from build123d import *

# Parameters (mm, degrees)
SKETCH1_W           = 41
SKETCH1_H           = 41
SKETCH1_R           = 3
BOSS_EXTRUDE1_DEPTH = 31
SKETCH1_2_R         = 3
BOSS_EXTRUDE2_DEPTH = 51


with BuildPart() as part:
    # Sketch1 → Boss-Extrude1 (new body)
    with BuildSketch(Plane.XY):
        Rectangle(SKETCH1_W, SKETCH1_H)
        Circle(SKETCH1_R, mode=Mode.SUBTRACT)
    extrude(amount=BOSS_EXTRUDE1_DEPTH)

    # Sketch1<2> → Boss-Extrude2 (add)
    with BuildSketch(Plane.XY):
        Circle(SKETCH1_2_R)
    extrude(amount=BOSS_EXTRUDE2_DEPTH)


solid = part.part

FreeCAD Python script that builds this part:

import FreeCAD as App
import Part
import Sketcher
from FreeCAD import Vector


def add_polygon(sketch, points):
    """Adds a closed chain of lines whose ends are joined by coincident constraints."""
    first, n = sketch.GeometryCount, len(points)
    for a, b in zip(points, points[1:] + points[:1]):
        sketch.addGeometry(Part.LineSegment(App.Vector(*a, 0), App.Vector(*b, 0)), False)
    for i in range(n):
        sketch.addConstraint(Sketcher.Constraint("Coincident", first + i, 2, first + (i + 1) % n, 1))

doc = App.newDocument("Part")
body = doc.addObject("PartDesign::Body", "Body")

# Sketch on XY plane
sketch1 = body.newObject("Sketcher::SketchObject", "Sketch")
sketch1.AttachmentSupport = (doc.getObject("XY_Plane"), [""])
sketch1.MapMode = "FlatFace"
add_polygon(sketch1, [(-20.5, 20.5), (-20.5, -20.5), (20.5, -20.5), (20.5, 20.5)])  # lines 0-3
sketch1.addGeometry(Part.Circle(Vector(0, 0, 0), Vector(0, 0, 1), 3), False)  # 4
sketch1.addConstraint(Sketcher.Constraint("Vertical", 0))
sketch1.addConstraint(Sketcher.Constraint("Horizontal", 1))
sketch1.addConstraint(Sketcher.Constraint("Vertical", 2))
sketch1.addConstraint(Sketcher.Constraint("Horizontal", 3))
sketch1.addConstraint(Sketcher.Constraint("Coincident", 4, 3, -1, 1))
sketch1.addConstraint(Sketcher.Constraint("Symmetric", 0, 2, 2, 2, -1, 1))
sketch1.addConstraint(Sketcher.Constraint("Equal", 3, 0))
sketch1.addConstraint(Sketcher.Constraint("Diameter", 4, 6.0))
sketch1.addConstraint(Sketcher.Constraint("DistanceX", 1, 1, 1, 2, 41.0))
pad1 = body.newObject("PartDesign::Pad", "Pad")
pad1.Profile = sketch1
pad1.Length = 31

# Sketch on XY plane
sketch2 = body.newObject("Sketcher::SketchObject", "Sketch001")
sketch2.AttachmentSupport = (doc.getObject("XY_Plane"), [""])
sketch2.MapMode = "FlatFace"
sketch2.addGeometry(Part.Circle(Vector(0, 0, 0), Vector(0, 0, 1), 3), False)
sketch2.addConstraint(Sketcher.Constraint("Coincident", 0, 3, -1, 1))
sketch2.addConstraint(Sketcher.Constraint("Diameter", 0, 6.0))
pad2 = body.newObject("PartDesign::Pad", "Pad001")
pad2.Profile = sketch2
pad2.Length = 51

doc.recompute()
